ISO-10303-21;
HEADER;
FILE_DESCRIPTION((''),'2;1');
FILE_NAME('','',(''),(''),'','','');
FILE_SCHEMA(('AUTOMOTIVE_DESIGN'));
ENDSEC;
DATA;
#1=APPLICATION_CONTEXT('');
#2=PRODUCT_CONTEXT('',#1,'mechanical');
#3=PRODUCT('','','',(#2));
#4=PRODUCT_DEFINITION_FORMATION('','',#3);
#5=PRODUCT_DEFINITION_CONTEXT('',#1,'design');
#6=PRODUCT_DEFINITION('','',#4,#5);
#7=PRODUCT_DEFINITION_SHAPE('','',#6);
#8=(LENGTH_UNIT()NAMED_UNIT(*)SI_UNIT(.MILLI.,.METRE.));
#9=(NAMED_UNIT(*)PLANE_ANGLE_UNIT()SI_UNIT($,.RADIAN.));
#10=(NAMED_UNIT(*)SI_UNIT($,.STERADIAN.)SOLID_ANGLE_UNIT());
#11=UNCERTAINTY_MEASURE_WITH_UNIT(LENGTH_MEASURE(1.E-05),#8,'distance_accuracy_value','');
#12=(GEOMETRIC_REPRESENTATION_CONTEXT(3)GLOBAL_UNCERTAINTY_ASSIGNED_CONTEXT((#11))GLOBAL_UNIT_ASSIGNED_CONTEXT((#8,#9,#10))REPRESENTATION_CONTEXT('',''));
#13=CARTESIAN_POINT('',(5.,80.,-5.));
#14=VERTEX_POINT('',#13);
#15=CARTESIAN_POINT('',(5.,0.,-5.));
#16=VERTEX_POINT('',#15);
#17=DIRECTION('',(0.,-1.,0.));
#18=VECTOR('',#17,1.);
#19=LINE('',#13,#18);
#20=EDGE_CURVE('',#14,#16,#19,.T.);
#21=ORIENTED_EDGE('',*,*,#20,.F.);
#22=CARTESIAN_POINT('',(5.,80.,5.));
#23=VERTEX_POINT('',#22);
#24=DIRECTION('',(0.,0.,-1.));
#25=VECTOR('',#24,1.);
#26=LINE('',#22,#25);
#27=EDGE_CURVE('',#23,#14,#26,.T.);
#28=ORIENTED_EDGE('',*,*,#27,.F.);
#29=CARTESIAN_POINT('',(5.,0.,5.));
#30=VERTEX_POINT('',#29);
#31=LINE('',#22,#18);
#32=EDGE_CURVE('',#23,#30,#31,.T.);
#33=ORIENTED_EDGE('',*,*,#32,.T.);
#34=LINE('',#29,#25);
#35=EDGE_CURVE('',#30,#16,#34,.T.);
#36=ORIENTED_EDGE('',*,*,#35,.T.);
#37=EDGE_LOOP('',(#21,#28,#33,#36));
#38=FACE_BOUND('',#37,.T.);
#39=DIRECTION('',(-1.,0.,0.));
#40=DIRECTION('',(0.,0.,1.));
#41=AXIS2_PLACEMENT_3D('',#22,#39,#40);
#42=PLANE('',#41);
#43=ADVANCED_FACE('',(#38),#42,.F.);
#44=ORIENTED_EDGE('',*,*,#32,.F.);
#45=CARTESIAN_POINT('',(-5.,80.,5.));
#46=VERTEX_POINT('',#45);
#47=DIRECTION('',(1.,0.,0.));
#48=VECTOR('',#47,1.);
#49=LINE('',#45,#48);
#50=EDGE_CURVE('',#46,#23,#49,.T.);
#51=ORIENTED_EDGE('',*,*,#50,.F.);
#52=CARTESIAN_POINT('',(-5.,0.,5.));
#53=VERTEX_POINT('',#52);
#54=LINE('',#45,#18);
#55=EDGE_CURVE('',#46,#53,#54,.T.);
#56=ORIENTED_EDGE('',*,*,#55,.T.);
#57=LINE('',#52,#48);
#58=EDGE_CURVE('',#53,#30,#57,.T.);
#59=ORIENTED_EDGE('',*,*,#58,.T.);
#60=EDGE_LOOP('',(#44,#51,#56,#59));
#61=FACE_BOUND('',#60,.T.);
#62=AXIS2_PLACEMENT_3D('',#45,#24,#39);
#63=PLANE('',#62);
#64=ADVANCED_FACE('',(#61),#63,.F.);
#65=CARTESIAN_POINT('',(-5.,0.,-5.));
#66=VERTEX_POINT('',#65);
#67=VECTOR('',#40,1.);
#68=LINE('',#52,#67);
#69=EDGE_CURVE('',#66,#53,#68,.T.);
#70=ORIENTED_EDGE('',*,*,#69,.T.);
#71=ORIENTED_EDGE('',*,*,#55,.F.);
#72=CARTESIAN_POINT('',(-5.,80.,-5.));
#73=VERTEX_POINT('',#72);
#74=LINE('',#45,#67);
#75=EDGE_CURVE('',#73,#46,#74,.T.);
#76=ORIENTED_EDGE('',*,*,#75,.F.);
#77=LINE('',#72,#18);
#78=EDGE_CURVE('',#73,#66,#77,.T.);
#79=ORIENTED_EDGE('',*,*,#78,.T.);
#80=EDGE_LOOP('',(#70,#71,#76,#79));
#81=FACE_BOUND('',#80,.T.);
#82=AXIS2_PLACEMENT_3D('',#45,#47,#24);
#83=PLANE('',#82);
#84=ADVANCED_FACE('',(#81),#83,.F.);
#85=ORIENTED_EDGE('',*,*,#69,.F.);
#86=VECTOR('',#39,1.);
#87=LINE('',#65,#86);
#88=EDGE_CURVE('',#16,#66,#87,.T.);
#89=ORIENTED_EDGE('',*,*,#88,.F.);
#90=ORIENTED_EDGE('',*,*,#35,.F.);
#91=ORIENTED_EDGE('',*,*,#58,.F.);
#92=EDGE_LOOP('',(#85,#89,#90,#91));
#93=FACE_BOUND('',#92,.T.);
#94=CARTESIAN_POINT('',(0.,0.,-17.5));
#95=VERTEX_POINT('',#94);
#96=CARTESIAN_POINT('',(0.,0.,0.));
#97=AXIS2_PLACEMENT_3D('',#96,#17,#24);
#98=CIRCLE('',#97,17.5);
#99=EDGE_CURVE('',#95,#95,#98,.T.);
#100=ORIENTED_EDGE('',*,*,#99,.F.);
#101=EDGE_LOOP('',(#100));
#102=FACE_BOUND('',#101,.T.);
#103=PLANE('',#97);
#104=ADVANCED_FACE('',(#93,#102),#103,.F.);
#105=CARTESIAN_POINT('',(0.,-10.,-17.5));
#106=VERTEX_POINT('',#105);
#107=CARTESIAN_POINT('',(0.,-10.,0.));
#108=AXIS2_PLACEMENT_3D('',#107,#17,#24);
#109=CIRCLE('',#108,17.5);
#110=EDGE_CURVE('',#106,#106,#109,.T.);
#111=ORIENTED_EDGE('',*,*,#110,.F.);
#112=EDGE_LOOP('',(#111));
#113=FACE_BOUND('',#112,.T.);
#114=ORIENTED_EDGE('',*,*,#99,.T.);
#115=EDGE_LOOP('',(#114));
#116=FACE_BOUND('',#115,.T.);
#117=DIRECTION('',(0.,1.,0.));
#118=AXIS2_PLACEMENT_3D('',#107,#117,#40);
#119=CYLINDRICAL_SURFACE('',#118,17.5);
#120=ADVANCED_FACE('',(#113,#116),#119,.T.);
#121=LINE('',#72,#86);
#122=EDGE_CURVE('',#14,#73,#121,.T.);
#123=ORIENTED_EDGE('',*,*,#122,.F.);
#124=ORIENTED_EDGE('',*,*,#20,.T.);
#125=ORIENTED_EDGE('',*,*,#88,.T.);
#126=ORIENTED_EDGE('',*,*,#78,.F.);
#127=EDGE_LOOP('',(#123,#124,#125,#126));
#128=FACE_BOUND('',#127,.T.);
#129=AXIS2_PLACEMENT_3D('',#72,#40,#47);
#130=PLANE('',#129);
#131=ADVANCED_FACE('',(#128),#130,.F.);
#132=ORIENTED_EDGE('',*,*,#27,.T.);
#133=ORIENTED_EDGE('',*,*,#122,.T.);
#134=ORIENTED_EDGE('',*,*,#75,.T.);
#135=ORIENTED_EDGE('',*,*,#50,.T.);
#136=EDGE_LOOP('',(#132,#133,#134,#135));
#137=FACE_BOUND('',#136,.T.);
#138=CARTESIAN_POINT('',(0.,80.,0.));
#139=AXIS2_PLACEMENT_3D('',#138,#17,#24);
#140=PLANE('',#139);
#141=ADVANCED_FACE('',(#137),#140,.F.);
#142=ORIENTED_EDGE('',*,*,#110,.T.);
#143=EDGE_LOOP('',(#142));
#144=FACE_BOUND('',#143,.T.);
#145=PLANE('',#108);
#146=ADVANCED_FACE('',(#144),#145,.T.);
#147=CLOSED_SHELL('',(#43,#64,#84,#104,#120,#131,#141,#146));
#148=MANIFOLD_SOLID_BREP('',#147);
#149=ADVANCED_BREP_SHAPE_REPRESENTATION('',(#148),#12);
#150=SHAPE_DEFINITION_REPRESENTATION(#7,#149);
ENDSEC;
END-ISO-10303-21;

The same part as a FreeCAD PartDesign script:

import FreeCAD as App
import Part
import Sketcher

V = App.Vector


def add_polygon(sketch, points):
    """Adds a closed chain of lines whose ends are joined by coincident constraints."""
    first, n = sketch.GeometryCount, len(points)
    for a, b in zip(points, points[1:] + points[:1]):
        sketch.addGeometry(Part.LineSegment(App.Vector(*a, 0), App.Vector(*b, 0)), False)
    for i in range(n):
        sketch.addConstraint(Sketcher.Constraint("Coincident", first + i, 2, first + (i + 1) % n, 1))

doc = App.newDocument("Part")
body = doc.addObject("PartDesign::Body", "Body")

sketch1 = doc.addObject("Sketcher::SketchObject", "Sketch")
body.addObject(sketch1)
sketch1.AttachmentSupport = (doc.XZ_Plane, [""])
sketch1.MapMode = "FlatFace"
add_polygon(sketch1, [(-5, -5), (-5, 5), (5, 5), (5, -5)])
sketch1.addConstraint(Sketcher.Constraint("Vertical", 0))
sketch1.addConstraint(Sketcher.Constraint("Horizontal", 1))
sketch1.addConstraint(Sketcher.Constraint("Vertical", 2))
sketch1.addConstraint(Sketcher.Constraint("Horizontal", 3))
sketch1.addConstraint(Sketcher.Constraint("Symmetric", 0, 2, 2, 2, -1, 1))
sketch1.addConstraint(Sketcher.Constraint("Equal", 3, 0))
sketch1.addConstraint(Sketcher.Constraint("DistanceX", 1, 1, 1, 2, 10.0))
pad1 = doc.addObject("PartDesign::Pad", "Pad")
body.addObject(pad1)
pad1.Profile = sketch1
pad1.Length = 80
pad1.Reversed = True

sketch2 = doc.addObject("Sketcher::SketchObject", "Sketch001")
body.addObject(sketch2)
sketch2.AttachmentSupport = (doc.XZ_Plane, [""])
sketch2.MapMode = "FlatFace"
sketch2.addGeometry(Part.Circle(V(0, 0, 0), V(0, 0, 1), 18), False)
sketch2.addConstraint(Sketcher.Constraint("Coincident", 0, 3, -1, 1))
sketch2.addConstraint(Sketcher.Constraint("Diameter", 0, 35.0))
pad2 = doc.addObject("PartDesign::Pad", "Pad001")
body.addObject(pad2)
pad2.Profile = sketch2
pad2.Length = 10

doc.recompute()
